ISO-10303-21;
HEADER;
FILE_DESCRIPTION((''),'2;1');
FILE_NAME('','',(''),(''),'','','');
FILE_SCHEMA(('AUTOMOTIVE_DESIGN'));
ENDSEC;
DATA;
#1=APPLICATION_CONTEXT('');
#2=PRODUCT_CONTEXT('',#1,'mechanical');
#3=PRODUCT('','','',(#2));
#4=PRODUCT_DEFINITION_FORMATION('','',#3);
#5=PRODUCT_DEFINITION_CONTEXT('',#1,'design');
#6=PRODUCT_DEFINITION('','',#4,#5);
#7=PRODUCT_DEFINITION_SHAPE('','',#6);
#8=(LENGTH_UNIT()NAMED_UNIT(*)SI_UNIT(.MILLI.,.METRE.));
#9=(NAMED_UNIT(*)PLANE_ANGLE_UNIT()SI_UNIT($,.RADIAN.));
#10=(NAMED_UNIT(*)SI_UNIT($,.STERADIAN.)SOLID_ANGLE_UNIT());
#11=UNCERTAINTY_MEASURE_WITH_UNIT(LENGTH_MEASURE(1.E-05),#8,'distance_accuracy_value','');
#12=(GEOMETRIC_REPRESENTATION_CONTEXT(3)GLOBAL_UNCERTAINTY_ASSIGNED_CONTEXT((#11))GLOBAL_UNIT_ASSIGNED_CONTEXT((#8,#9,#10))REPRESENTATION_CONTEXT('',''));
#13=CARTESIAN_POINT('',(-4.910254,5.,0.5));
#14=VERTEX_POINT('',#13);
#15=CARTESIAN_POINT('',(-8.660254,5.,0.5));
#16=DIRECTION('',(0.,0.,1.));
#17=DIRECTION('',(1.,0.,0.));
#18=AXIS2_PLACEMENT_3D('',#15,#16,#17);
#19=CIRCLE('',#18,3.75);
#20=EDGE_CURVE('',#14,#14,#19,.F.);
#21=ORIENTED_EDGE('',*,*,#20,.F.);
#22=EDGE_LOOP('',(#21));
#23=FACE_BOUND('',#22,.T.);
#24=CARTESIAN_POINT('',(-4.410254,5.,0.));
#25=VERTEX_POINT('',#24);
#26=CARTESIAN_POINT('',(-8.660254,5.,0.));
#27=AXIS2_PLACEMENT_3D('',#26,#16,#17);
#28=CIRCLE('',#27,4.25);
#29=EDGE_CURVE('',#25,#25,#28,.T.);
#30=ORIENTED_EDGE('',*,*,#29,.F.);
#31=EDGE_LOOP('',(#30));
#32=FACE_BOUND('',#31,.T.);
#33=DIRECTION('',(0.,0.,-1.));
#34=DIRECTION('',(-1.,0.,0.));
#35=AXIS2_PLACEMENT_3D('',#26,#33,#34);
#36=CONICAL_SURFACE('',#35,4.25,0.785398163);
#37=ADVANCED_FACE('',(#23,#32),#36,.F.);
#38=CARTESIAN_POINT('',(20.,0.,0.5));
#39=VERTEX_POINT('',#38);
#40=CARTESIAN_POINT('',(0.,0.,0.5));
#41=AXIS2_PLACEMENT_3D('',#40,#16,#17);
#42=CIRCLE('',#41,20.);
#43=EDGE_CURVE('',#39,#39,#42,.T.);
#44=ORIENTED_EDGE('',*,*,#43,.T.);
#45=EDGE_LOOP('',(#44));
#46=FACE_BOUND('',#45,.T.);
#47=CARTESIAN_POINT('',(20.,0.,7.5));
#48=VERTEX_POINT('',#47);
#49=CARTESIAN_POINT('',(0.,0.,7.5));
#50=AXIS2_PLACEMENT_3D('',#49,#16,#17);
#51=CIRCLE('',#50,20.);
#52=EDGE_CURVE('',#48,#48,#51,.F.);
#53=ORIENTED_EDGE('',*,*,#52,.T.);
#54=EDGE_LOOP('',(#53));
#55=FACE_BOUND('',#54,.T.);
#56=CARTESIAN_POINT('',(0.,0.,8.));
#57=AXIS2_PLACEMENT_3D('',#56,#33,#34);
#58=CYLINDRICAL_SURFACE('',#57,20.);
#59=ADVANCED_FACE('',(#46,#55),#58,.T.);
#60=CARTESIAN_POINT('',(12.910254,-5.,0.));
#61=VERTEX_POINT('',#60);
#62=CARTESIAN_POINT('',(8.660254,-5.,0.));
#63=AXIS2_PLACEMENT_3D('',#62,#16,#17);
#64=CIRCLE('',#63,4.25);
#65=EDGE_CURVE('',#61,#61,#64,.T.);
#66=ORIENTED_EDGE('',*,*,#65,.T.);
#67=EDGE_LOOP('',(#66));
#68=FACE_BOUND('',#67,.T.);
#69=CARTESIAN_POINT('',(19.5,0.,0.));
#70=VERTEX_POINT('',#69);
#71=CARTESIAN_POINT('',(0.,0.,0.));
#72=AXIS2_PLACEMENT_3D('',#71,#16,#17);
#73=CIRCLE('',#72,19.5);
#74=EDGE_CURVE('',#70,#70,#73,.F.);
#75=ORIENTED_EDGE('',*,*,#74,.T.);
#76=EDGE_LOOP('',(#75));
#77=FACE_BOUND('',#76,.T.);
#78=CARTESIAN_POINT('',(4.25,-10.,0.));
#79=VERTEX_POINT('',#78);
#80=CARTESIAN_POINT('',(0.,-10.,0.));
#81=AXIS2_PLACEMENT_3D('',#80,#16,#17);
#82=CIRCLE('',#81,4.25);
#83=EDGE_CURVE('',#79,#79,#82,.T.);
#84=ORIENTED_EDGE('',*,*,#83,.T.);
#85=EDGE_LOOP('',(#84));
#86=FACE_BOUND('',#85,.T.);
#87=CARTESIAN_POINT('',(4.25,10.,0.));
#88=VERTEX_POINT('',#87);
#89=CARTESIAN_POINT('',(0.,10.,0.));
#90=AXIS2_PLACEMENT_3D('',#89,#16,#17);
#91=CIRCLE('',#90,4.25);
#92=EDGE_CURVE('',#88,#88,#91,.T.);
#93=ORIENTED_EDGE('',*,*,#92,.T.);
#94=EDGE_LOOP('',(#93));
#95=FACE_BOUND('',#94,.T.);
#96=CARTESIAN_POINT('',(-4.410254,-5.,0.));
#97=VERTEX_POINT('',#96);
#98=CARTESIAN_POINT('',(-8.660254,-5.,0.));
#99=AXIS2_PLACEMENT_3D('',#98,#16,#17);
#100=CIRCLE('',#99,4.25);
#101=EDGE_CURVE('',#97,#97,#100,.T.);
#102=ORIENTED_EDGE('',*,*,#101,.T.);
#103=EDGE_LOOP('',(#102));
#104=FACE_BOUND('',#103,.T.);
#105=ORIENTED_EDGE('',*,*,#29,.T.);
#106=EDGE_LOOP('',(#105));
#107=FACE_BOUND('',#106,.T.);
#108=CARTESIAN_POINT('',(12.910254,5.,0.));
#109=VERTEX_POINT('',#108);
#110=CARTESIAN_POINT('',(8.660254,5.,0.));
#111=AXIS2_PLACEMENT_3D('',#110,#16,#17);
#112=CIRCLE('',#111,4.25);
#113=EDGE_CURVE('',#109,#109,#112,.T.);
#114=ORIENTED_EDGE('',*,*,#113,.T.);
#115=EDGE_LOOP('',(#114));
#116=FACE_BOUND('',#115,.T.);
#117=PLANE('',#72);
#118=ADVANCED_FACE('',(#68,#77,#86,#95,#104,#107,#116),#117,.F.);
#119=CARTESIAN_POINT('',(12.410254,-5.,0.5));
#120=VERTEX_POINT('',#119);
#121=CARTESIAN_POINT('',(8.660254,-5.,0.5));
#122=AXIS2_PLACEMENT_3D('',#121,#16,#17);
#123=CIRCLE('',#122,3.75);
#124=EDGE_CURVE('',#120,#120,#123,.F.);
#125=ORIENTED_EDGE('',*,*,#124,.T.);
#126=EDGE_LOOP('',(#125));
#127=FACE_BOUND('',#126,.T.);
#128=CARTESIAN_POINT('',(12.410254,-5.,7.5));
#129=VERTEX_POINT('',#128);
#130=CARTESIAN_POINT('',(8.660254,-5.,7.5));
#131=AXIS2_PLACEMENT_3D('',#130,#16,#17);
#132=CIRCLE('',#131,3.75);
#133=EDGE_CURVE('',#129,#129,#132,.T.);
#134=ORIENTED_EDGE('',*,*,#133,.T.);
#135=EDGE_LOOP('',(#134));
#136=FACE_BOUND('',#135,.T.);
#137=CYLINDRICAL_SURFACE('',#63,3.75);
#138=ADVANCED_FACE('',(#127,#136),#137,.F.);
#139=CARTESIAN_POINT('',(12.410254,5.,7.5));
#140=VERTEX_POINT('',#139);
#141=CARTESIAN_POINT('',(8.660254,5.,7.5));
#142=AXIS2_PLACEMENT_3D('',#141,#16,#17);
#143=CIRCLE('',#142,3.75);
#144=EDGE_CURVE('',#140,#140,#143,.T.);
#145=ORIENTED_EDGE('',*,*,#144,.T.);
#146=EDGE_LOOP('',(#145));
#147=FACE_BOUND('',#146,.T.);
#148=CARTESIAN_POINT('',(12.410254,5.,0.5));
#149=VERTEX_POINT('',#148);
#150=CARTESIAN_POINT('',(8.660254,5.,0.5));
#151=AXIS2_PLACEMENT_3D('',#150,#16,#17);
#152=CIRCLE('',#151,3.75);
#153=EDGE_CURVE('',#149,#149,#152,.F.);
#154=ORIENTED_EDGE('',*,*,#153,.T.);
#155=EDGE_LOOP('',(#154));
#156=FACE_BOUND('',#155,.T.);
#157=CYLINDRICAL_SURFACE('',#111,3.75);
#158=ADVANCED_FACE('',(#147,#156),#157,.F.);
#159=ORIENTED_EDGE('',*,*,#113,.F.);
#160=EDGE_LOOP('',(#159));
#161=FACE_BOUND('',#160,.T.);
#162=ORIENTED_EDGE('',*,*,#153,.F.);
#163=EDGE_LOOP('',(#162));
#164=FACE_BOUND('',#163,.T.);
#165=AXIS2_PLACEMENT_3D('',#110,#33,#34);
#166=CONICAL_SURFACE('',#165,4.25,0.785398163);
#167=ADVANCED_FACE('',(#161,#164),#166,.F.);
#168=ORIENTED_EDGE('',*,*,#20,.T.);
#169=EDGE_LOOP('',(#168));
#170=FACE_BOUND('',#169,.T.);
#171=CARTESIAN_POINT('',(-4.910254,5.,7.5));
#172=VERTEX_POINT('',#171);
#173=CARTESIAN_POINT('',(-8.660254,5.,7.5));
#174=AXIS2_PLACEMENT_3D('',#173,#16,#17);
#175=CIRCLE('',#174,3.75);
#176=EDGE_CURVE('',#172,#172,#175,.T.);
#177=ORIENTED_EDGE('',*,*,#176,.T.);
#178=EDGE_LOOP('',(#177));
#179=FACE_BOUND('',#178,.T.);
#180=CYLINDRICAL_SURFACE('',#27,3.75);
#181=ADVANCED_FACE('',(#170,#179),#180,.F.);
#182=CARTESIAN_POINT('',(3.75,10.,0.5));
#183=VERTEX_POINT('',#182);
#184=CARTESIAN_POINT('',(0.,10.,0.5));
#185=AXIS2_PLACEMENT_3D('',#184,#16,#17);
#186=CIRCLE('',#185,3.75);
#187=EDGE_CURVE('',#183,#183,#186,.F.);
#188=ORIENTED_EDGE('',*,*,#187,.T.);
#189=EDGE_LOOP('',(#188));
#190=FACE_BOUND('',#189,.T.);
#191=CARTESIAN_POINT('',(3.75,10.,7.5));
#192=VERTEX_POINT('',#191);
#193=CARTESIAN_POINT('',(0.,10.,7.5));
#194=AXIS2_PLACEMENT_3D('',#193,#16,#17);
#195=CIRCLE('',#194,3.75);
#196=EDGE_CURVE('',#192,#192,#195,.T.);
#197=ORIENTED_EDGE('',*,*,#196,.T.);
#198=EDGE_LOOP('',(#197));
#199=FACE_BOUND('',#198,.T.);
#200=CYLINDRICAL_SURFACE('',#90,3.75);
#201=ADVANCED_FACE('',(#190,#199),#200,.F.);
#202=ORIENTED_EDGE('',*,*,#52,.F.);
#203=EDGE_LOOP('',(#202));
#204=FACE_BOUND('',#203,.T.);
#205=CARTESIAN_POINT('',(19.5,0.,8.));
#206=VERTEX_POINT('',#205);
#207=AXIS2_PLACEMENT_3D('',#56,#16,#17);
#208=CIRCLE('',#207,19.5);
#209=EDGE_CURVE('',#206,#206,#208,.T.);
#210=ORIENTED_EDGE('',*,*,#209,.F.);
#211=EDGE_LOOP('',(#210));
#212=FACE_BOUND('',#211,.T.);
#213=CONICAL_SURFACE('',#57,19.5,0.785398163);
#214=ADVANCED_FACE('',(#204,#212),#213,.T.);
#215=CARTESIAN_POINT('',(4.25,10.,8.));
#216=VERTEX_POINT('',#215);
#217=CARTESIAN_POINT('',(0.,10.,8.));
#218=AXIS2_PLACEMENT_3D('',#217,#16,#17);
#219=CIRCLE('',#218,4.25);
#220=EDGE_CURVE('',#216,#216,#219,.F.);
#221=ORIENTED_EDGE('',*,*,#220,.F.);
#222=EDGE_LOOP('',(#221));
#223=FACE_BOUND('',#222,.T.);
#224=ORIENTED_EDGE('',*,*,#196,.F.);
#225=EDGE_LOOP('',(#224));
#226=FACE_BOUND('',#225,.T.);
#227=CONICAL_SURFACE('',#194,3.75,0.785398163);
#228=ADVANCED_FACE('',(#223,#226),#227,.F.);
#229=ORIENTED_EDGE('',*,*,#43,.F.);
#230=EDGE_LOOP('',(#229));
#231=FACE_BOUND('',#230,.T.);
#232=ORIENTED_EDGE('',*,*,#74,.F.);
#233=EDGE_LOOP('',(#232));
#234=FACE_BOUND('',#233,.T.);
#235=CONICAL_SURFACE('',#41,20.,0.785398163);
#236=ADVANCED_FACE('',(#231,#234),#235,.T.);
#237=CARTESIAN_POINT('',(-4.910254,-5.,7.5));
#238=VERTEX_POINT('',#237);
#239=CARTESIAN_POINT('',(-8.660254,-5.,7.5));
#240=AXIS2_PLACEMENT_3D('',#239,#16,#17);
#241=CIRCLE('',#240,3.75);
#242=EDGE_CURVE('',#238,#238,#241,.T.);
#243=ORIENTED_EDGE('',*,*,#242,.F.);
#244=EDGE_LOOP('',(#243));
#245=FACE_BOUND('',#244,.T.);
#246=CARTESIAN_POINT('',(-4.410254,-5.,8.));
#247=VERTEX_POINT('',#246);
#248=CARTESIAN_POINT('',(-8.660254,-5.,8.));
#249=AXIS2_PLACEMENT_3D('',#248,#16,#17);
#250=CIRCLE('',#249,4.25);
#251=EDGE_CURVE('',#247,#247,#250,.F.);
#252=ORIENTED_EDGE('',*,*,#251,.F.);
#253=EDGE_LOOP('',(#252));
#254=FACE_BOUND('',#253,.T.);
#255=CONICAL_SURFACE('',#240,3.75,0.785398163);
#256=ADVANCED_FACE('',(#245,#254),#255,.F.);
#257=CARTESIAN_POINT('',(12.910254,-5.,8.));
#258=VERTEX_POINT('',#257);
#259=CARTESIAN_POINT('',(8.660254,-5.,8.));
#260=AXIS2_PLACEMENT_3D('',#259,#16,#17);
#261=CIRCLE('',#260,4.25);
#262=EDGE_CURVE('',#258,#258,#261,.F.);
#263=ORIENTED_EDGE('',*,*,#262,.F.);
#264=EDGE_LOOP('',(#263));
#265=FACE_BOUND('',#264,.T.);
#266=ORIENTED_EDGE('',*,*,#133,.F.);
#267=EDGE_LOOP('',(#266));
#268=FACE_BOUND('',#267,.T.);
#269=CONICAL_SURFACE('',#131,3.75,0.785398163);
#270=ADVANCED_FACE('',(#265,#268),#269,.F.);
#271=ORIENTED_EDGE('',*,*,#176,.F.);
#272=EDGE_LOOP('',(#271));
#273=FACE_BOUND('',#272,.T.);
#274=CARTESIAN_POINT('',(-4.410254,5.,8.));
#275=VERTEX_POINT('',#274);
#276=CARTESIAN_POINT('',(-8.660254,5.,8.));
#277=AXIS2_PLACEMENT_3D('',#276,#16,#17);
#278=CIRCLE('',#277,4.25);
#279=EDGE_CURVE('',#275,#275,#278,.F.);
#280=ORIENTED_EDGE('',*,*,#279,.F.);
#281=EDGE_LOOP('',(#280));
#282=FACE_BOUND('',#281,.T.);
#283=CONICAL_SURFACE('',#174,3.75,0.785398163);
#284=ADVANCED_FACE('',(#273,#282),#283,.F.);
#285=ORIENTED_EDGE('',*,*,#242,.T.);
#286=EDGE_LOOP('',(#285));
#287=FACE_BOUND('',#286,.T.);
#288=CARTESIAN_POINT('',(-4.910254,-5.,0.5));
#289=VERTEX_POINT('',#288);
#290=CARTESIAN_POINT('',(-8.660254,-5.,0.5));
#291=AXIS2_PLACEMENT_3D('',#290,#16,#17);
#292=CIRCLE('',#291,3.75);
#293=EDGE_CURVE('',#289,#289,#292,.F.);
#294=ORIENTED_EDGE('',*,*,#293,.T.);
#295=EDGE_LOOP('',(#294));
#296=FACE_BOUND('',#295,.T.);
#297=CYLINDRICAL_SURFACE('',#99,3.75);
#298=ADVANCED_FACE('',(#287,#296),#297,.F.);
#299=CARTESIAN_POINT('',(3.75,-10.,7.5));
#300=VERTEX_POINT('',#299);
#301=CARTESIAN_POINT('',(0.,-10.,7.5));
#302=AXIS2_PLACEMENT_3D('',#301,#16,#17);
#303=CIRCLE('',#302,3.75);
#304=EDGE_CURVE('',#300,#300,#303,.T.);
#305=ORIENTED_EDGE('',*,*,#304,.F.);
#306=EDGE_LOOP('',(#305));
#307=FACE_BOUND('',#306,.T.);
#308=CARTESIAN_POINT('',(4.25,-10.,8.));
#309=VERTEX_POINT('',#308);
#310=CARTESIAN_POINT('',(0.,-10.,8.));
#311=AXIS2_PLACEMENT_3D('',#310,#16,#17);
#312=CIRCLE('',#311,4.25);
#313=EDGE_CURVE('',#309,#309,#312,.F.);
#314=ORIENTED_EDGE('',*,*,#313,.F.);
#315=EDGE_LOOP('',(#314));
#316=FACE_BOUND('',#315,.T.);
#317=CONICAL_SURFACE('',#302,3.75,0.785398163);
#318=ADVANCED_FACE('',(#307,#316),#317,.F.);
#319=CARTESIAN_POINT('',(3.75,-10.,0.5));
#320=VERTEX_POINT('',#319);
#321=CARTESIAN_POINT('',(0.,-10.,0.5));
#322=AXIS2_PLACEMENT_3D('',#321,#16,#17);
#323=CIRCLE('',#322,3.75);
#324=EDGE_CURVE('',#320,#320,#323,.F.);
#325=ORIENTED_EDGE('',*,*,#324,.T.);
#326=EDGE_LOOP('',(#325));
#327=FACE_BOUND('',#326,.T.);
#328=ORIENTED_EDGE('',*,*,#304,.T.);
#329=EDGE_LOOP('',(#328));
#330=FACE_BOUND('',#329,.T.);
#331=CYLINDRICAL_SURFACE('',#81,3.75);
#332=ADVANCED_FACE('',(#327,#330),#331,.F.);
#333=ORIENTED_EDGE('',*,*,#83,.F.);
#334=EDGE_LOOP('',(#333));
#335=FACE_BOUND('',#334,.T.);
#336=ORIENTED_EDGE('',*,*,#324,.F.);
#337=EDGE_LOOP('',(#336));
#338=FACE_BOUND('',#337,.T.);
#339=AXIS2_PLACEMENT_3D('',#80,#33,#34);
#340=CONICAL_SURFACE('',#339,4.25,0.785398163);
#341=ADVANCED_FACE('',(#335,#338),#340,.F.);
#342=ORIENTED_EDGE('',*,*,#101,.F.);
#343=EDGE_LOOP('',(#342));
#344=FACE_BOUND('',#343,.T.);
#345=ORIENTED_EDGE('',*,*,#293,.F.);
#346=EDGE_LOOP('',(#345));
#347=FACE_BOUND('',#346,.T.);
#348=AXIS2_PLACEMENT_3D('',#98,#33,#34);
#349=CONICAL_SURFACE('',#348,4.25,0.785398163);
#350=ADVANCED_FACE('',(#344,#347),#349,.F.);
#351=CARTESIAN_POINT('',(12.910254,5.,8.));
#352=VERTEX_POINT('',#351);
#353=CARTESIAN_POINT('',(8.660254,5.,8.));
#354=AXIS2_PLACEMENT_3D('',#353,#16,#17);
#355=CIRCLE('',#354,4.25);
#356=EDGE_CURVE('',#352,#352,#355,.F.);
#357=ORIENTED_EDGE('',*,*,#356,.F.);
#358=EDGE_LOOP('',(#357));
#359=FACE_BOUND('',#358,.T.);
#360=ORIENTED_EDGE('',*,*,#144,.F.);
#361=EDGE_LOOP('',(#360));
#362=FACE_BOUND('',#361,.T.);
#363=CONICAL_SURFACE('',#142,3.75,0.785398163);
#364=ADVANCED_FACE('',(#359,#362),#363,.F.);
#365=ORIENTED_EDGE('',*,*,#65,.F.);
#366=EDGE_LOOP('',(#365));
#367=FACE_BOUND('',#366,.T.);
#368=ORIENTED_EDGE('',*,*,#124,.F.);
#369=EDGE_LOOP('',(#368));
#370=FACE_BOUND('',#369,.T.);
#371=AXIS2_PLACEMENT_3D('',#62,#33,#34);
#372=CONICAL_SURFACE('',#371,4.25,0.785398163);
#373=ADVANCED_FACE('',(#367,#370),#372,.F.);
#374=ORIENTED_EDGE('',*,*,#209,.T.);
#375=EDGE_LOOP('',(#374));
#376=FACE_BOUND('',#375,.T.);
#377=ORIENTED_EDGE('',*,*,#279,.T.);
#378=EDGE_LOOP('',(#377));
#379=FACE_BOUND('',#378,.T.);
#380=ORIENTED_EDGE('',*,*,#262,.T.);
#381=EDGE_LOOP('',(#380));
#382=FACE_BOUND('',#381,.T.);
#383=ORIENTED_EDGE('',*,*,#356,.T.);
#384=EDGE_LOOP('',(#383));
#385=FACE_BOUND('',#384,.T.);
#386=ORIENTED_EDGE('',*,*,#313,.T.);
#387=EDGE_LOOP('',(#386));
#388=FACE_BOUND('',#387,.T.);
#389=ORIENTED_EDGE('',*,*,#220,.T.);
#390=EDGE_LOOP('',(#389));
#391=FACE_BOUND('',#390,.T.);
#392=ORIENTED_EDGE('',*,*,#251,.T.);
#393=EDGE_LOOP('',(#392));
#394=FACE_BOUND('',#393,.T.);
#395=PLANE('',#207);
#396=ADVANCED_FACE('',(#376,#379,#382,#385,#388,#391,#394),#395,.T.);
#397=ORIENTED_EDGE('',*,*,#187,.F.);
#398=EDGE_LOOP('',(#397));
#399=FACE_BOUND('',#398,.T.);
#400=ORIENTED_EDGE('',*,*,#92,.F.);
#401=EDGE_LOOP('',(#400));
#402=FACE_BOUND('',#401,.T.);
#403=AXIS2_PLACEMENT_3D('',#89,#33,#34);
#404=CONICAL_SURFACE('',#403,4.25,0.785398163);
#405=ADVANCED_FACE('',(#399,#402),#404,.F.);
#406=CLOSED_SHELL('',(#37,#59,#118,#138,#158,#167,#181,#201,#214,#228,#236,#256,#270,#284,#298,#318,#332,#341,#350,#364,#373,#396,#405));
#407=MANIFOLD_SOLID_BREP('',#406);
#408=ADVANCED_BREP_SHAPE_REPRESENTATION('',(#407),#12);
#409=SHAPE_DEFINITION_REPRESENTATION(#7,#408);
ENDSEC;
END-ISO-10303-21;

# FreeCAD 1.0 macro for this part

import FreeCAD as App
import Part
import Sketcher
Q = App.Units.Quantity


def edges_at(feature, points):
    """Names of the edges that pass closest to the given points."""
    edges = feature.Shape.Edges
    near = lambda p: min(range(len(edges)), key=lambda i: edges[i].distToShape(Part.Vertex(*p))[0])
    return sorted({f"Edge{near(p) + 1}" for p in points})

doc = App.newDocument("Part")
body = doc.addObject("PartDesign::Body", "Body")

# Sketch on XY plane
sketch1 = body.newObject("Sketcher::SketchObject", "Sketch")
sketch1.AttachmentSupport = (doc.getObject("XY_Plane"), [""])
sketch1.MapMode = "FlatFace"
sketch1.addGeometry(Part.Circle(App.Vector(0, 0, 0), App.Vector(0, 0, 1), 20), False)
sketch1.addConstraint(Sketcher.Constraint("Coincident", 0, 3, -1, 1))
sketch1.addConstraint(Sketcher.Constraint("Diameter", 0, Q("40 mm")))
pad1 = body.newObject("PartDesign::Pad", "Pad")
pad1.Profile = sketch1
pad1.Length = 8

# Sketch on XY plane
sketch2 = body.newObject("Sketcher::SketchObject", "Sketch001")
sketch2.AttachmentSupport = (doc.getObject("XY_Plane"), [""])
sketch2.MapMode = "FlatFace"
sketch2.AttachmentOffset = App.Placement(App.Vector(0, 0, 8), App.Rotation())
sketch2.addGeometry(Part.Circle(App.Vector(0, 10, 0), App.Vector(0, 0, 1), 3.8), False)
sketch2.addConstraint(Sketcher.Constraint("PointOnObject", 0, 3, -2))
sketch2.addConstraint(Sketcher.Constraint("Diameter", 0, Q("7.5 mm")))
sketch2.addConstraint(Sketcher.Constraint("DistanceY", -1, 1, 0, 3, Q("10 mm")))
pocket1 = body.newObject("PartDesign::Pocket", "Pocket")
pocket1.Profile = sketch2
pocket1.Length = 8
doc.recompute()

polarpattern = body.newObject("PartDesign::PolarPattern", "PolarPattern")
polarpattern.Originals = [pocket1]
polarpattern.Axis = (doc.getObject("Z_Axis"), [""])
polarpattern.Angle = 360
polarpattern.Occurrences = 6
body.Tip = polarpattern
doc.recompute()

chamfer = body.newObject("PartDesign::Chamfer", "Chamfer")
chamfer.Base = (polarpattern, edges_at(polarpattern, [
    (-10.535, 1.752, 0),
    (-10.535, 1.752, 8),
    (-6.785, -8.248, 0),
    (-6.785, -8.248, 8),
    (3.75, -10, 0),
    (-20, 0, 0),
    (3.75, -10, 8),
    (10.535, -1.752, 0),
    (10.535, -1.752, 8),
    (6.785, 8.248, 0),
    (6.785, 8.248, 8),
    (-20, 0, 8),
    (-3.75, 10, 0),
    (-3.75, 10, 8),
]))
chamfer.Size = 0.5

doc.recompute()
